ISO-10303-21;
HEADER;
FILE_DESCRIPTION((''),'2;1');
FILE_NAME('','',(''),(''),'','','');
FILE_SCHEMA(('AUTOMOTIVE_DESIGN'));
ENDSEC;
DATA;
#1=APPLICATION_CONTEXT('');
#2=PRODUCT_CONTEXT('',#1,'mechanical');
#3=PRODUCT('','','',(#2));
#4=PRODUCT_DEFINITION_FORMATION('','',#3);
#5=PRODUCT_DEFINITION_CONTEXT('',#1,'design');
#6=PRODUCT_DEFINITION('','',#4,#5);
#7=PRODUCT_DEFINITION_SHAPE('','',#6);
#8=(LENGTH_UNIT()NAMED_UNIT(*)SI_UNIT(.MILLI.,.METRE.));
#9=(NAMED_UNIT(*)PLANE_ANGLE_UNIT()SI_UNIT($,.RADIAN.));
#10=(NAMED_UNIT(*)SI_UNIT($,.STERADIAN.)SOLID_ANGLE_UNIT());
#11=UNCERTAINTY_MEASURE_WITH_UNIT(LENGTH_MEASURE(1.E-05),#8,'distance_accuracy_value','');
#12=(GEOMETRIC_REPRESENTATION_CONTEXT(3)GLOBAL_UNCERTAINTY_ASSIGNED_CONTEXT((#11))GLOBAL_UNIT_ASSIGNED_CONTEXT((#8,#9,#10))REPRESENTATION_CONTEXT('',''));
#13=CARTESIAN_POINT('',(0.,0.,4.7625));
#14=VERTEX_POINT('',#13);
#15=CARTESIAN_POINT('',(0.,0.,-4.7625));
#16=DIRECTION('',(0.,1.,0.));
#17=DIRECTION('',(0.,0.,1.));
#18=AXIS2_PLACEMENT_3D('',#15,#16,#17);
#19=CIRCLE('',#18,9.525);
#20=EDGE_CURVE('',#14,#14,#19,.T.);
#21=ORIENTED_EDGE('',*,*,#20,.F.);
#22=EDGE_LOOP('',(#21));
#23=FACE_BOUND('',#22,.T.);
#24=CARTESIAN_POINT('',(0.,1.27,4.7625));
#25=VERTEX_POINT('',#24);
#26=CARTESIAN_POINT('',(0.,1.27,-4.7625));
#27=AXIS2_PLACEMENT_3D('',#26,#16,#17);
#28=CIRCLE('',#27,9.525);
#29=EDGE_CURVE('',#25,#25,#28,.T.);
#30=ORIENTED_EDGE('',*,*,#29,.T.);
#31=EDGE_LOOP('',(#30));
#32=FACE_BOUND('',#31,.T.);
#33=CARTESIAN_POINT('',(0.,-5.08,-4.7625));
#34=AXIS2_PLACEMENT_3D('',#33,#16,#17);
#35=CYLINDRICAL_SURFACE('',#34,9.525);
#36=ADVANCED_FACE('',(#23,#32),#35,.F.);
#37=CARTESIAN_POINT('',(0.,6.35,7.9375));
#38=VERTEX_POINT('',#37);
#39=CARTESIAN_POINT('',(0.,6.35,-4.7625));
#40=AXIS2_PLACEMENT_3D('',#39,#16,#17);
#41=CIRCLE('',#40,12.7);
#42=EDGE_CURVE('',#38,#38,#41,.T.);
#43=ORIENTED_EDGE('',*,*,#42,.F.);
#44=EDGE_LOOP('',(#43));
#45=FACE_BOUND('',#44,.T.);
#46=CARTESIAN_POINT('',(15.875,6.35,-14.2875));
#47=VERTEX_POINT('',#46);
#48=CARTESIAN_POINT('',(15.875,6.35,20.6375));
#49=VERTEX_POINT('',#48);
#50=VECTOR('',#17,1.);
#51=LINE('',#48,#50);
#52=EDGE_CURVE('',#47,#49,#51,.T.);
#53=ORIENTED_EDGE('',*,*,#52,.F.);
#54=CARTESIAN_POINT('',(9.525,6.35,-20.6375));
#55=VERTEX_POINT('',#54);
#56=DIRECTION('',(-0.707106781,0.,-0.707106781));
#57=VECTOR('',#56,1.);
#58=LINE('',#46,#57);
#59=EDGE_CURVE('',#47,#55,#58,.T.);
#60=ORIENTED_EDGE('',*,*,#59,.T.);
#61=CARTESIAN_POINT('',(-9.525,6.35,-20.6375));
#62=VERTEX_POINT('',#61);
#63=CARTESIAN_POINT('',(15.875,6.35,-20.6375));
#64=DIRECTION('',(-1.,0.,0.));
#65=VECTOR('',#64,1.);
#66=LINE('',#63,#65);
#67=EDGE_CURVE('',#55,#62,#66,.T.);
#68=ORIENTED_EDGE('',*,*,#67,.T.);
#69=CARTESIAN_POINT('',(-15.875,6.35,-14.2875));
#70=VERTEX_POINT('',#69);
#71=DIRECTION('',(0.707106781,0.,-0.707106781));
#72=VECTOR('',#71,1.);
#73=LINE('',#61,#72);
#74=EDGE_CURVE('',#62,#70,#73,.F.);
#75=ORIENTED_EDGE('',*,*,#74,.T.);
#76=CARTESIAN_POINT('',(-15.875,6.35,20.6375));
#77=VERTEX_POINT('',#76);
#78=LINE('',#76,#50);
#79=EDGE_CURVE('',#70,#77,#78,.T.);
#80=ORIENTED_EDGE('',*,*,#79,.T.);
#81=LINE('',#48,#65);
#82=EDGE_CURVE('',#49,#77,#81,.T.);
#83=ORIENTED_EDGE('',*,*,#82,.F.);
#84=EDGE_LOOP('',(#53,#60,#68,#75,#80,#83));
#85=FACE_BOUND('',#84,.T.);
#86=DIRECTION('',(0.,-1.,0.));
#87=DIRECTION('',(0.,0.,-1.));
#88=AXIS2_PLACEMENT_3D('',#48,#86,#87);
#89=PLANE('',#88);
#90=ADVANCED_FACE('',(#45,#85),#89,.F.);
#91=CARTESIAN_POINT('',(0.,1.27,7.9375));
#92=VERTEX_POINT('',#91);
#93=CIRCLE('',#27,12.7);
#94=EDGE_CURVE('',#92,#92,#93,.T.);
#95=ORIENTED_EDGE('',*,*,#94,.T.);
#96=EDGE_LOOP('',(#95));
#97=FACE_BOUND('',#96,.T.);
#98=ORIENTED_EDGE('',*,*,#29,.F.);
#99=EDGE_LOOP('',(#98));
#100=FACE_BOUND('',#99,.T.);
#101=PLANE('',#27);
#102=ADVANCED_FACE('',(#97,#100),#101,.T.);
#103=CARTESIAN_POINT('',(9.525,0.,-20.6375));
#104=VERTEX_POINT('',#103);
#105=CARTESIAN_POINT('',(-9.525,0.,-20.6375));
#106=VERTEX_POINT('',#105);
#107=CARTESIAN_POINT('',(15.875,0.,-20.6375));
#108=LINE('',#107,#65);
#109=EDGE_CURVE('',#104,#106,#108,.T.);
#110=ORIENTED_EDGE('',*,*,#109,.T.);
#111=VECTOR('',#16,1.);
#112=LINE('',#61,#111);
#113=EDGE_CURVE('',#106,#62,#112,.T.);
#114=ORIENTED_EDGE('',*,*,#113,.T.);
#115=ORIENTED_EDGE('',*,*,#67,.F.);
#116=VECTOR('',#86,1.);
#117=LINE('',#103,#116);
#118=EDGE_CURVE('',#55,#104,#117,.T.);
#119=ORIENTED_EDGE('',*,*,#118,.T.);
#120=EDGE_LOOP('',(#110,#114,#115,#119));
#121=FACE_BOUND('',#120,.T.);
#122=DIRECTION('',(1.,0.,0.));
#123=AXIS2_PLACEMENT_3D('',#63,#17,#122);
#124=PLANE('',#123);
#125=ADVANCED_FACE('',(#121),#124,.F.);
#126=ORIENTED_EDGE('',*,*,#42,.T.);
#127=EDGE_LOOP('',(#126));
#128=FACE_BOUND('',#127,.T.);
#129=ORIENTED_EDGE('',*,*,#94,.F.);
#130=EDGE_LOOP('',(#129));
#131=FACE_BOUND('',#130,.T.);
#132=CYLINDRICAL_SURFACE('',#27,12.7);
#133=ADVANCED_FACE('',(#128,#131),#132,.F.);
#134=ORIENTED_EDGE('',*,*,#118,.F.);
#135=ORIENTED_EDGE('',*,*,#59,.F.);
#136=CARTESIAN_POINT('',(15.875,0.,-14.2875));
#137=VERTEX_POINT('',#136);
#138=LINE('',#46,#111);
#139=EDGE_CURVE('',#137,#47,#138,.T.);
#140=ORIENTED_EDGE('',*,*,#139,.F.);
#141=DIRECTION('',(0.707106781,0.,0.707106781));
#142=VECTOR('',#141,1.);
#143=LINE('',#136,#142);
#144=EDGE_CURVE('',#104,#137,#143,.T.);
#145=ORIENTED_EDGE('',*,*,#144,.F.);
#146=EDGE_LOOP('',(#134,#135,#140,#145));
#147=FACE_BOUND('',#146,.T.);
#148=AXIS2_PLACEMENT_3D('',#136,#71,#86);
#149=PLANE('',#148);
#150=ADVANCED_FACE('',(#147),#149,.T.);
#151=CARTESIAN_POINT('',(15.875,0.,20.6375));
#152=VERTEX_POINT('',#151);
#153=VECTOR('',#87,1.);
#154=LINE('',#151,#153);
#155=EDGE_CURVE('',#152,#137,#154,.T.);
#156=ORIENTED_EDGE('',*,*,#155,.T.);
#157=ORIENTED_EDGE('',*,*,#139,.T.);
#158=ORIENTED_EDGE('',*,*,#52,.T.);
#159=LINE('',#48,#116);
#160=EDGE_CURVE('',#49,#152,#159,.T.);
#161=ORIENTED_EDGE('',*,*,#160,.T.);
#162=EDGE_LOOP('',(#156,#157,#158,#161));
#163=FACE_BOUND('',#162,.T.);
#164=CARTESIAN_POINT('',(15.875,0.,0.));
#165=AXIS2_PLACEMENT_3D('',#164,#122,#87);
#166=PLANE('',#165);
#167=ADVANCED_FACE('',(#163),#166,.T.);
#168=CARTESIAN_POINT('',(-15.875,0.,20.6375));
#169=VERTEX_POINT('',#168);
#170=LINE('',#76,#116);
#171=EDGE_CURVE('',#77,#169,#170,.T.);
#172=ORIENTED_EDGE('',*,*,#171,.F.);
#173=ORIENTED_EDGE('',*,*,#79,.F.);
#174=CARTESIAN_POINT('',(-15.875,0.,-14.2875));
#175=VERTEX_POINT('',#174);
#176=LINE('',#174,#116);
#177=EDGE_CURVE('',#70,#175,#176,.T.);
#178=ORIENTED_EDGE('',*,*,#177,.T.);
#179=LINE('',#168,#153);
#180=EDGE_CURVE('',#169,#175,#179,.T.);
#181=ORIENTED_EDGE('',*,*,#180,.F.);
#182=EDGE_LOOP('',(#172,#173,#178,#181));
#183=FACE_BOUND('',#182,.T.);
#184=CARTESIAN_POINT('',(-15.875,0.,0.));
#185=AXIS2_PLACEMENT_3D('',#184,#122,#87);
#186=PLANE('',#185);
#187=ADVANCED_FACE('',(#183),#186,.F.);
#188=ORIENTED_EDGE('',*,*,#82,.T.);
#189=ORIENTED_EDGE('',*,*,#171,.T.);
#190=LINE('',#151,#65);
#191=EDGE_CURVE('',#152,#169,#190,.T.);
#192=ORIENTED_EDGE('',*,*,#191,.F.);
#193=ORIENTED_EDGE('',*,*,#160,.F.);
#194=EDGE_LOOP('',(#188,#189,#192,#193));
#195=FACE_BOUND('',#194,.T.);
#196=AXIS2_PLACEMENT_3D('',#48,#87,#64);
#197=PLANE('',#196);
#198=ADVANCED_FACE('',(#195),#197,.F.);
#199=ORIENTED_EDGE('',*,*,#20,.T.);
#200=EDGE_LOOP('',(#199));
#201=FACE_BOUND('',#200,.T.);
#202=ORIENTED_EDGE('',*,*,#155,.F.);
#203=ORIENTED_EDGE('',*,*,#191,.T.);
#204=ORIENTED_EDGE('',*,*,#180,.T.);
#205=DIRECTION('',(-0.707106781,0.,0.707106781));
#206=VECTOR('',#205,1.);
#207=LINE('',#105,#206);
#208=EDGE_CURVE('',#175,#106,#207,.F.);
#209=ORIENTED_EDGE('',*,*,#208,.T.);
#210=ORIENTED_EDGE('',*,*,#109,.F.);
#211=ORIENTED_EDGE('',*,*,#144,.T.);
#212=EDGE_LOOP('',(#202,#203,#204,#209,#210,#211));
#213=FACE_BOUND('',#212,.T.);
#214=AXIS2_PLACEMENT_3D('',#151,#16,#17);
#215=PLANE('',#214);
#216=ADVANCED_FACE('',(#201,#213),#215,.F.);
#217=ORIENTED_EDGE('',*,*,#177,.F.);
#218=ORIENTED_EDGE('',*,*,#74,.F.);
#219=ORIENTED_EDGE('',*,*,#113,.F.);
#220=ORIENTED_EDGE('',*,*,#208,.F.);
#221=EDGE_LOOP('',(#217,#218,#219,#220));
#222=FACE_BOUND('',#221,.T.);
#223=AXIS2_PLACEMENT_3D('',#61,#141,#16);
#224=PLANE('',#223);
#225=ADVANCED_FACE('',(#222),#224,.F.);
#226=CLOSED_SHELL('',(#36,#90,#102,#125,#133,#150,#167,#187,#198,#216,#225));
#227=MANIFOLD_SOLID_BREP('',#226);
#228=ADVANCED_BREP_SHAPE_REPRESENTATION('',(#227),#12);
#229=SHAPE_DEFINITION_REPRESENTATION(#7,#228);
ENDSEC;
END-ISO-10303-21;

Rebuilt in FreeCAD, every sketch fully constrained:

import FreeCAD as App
import Part
import Sketcher
Q = App.Units.Quantity


def edges_at(feature, points):
    """Names of the edges that pass closest to the given points."""
    edges = feature.Shape.Edges
    near = lambda p: min(range(len(edges)), key=lambda i: edges[i].distToShape(Part.Vertex(*p))[0])
    return sorted({f"Edge{near(p) + 1}" for p in points})


def add_polygon(sketch, points):
    """Adds a closed chain of lines whose ends are joined by coincident constraints."""
    first, n = sketch.GeometryCount, len(points)
    for a, b in zip(points, points[1:] + points[:1]):
        sketch.addGeometry(Part.LineSegment(App.Vector(*a, 0), App.Vector(*b, 0)), False)
    for i in range(n):
        sketch.addConstraint(Sketcher.Constraint("Coincident", first + i, 2, first + (i + 1) % n, 1))

doc = App.newDocument("Part")
body = doc.addObject("PartDesign::Body", "Body")

sketch1 = doc.addObject("Sketcher::SketchObject", "Sketch")
body.addObject(sketch1)
sketch1.AttachmentSupport = (doc.YZ_Plane, [""])
sketch1.MapMode = "FlatFace"
add_polygon(sketch1, [(6.35, 20.6375), (0, 20.6375), (0, -20.6375), (6.35, -20.6375)])
sketch1.addConstraint([
    Sketcher.Constraint("Horizontal", 0),
    Sketcher.Constraint("Vertical", 1),
    Sketcher.Constraint("Horizontal", 2),
    Sketcher.Constraint("Vertical", 3),
    Sketcher.Constraint("Symmetric", 0, 2, 1, 2, -1, 1),
    Sketcher.Constraint("DistanceX", 0, 2, 0, 1, Q("0.25 in")),
    Sketcher.Constraint("DistanceY", 1, 2, 1, 1, Q("1.625 in")),
])
pad1 = doc.addObject("PartDesign::Pad", "Pad")
body.addObject(pad1)
pad1.Profile = sketch1
pad1.Length = Q("1.25 in")
pad1.Midplane = True

sketch2 = doc.addObject("Sketcher::SketchObject", "Sketch001")
body.addObject(sketch2)
sketch2.AttachmentSupport = (doc.XZ_Plane, [""])
sketch2.MapMode = "FlatFace"
sketch2.AttachmentOffset = App.Placement(App.Vector(0, 0, -0.25 * 25.4), App.Rotation())
sketch2.addGeometry(Part.Circle(App.Vector(0, -4.7625, 0), App.Vector(0, 0, 1), 12.7), False)
sketch2.addConstraint([
    Sketcher.Constraint("PointOnObject", 0, 3, -2),
    Sketcher.Constraint("Diameter", 0, Q("1 in")),
    Sketcher.Constraint("DistanceY", 0, 3, -1, 1, Q("0.1875 in")),
])
pocket1 = doc.addObject("PartDesign::Pocket", "Pocket")
body.addObject(pocket1)
pocket1.Profile = sketch2
pocket1.Length = Q("0.2 in")
pocket1.Reversed = True

sketch3 = doc.addObject("Sketcher::SketchObject", "Sketch002")
body.addObject(sketch3)
sketch3.AttachmentSupport = (doc.XZ_Plane, [""])
sketch3.MapMode = "FlatFace"
sketch3.AttachmentOffset = App.Placement(App.Vector(0, 0, -0.05 * 25.4), App.Rotation())
sketch3.addGeometry(Part.Circle(App.Vector(0, -4.7625, 0), App.Vector(0, 0, 1), 9.525), False)
sketch3.addConstraint([
    Sketcher.Constraint("PointOnObject", 0, 3, -2),
    Sketcher.Constraint("Diameter", 0, Q("0.75 in")),
    Sketcher.Constraint("DistanceY", 0, 3, -1, 1, Q("0.1875 in")),
])
pocket2 = doc.addObject("PartDesign::Pocket", "Pocket001")
body.addObject(pocket2)
pocket2.Profile = sketch3
pocket2.Length = Q("0.25 in")
pocket2.Reversed = True
doc.recompute()

chamfer = doc.addObject("PartDesign::Chamfer", "Chamfer")
body.addObject(chamfer)
chamfer.Base = (pocket2, edges_at(pocket2, [(15.875, 3.175, -20.637), (-15.875, 3.175, -20.637)]))
chamfer.Size = Q("0.25 in")

doc.recompute()
